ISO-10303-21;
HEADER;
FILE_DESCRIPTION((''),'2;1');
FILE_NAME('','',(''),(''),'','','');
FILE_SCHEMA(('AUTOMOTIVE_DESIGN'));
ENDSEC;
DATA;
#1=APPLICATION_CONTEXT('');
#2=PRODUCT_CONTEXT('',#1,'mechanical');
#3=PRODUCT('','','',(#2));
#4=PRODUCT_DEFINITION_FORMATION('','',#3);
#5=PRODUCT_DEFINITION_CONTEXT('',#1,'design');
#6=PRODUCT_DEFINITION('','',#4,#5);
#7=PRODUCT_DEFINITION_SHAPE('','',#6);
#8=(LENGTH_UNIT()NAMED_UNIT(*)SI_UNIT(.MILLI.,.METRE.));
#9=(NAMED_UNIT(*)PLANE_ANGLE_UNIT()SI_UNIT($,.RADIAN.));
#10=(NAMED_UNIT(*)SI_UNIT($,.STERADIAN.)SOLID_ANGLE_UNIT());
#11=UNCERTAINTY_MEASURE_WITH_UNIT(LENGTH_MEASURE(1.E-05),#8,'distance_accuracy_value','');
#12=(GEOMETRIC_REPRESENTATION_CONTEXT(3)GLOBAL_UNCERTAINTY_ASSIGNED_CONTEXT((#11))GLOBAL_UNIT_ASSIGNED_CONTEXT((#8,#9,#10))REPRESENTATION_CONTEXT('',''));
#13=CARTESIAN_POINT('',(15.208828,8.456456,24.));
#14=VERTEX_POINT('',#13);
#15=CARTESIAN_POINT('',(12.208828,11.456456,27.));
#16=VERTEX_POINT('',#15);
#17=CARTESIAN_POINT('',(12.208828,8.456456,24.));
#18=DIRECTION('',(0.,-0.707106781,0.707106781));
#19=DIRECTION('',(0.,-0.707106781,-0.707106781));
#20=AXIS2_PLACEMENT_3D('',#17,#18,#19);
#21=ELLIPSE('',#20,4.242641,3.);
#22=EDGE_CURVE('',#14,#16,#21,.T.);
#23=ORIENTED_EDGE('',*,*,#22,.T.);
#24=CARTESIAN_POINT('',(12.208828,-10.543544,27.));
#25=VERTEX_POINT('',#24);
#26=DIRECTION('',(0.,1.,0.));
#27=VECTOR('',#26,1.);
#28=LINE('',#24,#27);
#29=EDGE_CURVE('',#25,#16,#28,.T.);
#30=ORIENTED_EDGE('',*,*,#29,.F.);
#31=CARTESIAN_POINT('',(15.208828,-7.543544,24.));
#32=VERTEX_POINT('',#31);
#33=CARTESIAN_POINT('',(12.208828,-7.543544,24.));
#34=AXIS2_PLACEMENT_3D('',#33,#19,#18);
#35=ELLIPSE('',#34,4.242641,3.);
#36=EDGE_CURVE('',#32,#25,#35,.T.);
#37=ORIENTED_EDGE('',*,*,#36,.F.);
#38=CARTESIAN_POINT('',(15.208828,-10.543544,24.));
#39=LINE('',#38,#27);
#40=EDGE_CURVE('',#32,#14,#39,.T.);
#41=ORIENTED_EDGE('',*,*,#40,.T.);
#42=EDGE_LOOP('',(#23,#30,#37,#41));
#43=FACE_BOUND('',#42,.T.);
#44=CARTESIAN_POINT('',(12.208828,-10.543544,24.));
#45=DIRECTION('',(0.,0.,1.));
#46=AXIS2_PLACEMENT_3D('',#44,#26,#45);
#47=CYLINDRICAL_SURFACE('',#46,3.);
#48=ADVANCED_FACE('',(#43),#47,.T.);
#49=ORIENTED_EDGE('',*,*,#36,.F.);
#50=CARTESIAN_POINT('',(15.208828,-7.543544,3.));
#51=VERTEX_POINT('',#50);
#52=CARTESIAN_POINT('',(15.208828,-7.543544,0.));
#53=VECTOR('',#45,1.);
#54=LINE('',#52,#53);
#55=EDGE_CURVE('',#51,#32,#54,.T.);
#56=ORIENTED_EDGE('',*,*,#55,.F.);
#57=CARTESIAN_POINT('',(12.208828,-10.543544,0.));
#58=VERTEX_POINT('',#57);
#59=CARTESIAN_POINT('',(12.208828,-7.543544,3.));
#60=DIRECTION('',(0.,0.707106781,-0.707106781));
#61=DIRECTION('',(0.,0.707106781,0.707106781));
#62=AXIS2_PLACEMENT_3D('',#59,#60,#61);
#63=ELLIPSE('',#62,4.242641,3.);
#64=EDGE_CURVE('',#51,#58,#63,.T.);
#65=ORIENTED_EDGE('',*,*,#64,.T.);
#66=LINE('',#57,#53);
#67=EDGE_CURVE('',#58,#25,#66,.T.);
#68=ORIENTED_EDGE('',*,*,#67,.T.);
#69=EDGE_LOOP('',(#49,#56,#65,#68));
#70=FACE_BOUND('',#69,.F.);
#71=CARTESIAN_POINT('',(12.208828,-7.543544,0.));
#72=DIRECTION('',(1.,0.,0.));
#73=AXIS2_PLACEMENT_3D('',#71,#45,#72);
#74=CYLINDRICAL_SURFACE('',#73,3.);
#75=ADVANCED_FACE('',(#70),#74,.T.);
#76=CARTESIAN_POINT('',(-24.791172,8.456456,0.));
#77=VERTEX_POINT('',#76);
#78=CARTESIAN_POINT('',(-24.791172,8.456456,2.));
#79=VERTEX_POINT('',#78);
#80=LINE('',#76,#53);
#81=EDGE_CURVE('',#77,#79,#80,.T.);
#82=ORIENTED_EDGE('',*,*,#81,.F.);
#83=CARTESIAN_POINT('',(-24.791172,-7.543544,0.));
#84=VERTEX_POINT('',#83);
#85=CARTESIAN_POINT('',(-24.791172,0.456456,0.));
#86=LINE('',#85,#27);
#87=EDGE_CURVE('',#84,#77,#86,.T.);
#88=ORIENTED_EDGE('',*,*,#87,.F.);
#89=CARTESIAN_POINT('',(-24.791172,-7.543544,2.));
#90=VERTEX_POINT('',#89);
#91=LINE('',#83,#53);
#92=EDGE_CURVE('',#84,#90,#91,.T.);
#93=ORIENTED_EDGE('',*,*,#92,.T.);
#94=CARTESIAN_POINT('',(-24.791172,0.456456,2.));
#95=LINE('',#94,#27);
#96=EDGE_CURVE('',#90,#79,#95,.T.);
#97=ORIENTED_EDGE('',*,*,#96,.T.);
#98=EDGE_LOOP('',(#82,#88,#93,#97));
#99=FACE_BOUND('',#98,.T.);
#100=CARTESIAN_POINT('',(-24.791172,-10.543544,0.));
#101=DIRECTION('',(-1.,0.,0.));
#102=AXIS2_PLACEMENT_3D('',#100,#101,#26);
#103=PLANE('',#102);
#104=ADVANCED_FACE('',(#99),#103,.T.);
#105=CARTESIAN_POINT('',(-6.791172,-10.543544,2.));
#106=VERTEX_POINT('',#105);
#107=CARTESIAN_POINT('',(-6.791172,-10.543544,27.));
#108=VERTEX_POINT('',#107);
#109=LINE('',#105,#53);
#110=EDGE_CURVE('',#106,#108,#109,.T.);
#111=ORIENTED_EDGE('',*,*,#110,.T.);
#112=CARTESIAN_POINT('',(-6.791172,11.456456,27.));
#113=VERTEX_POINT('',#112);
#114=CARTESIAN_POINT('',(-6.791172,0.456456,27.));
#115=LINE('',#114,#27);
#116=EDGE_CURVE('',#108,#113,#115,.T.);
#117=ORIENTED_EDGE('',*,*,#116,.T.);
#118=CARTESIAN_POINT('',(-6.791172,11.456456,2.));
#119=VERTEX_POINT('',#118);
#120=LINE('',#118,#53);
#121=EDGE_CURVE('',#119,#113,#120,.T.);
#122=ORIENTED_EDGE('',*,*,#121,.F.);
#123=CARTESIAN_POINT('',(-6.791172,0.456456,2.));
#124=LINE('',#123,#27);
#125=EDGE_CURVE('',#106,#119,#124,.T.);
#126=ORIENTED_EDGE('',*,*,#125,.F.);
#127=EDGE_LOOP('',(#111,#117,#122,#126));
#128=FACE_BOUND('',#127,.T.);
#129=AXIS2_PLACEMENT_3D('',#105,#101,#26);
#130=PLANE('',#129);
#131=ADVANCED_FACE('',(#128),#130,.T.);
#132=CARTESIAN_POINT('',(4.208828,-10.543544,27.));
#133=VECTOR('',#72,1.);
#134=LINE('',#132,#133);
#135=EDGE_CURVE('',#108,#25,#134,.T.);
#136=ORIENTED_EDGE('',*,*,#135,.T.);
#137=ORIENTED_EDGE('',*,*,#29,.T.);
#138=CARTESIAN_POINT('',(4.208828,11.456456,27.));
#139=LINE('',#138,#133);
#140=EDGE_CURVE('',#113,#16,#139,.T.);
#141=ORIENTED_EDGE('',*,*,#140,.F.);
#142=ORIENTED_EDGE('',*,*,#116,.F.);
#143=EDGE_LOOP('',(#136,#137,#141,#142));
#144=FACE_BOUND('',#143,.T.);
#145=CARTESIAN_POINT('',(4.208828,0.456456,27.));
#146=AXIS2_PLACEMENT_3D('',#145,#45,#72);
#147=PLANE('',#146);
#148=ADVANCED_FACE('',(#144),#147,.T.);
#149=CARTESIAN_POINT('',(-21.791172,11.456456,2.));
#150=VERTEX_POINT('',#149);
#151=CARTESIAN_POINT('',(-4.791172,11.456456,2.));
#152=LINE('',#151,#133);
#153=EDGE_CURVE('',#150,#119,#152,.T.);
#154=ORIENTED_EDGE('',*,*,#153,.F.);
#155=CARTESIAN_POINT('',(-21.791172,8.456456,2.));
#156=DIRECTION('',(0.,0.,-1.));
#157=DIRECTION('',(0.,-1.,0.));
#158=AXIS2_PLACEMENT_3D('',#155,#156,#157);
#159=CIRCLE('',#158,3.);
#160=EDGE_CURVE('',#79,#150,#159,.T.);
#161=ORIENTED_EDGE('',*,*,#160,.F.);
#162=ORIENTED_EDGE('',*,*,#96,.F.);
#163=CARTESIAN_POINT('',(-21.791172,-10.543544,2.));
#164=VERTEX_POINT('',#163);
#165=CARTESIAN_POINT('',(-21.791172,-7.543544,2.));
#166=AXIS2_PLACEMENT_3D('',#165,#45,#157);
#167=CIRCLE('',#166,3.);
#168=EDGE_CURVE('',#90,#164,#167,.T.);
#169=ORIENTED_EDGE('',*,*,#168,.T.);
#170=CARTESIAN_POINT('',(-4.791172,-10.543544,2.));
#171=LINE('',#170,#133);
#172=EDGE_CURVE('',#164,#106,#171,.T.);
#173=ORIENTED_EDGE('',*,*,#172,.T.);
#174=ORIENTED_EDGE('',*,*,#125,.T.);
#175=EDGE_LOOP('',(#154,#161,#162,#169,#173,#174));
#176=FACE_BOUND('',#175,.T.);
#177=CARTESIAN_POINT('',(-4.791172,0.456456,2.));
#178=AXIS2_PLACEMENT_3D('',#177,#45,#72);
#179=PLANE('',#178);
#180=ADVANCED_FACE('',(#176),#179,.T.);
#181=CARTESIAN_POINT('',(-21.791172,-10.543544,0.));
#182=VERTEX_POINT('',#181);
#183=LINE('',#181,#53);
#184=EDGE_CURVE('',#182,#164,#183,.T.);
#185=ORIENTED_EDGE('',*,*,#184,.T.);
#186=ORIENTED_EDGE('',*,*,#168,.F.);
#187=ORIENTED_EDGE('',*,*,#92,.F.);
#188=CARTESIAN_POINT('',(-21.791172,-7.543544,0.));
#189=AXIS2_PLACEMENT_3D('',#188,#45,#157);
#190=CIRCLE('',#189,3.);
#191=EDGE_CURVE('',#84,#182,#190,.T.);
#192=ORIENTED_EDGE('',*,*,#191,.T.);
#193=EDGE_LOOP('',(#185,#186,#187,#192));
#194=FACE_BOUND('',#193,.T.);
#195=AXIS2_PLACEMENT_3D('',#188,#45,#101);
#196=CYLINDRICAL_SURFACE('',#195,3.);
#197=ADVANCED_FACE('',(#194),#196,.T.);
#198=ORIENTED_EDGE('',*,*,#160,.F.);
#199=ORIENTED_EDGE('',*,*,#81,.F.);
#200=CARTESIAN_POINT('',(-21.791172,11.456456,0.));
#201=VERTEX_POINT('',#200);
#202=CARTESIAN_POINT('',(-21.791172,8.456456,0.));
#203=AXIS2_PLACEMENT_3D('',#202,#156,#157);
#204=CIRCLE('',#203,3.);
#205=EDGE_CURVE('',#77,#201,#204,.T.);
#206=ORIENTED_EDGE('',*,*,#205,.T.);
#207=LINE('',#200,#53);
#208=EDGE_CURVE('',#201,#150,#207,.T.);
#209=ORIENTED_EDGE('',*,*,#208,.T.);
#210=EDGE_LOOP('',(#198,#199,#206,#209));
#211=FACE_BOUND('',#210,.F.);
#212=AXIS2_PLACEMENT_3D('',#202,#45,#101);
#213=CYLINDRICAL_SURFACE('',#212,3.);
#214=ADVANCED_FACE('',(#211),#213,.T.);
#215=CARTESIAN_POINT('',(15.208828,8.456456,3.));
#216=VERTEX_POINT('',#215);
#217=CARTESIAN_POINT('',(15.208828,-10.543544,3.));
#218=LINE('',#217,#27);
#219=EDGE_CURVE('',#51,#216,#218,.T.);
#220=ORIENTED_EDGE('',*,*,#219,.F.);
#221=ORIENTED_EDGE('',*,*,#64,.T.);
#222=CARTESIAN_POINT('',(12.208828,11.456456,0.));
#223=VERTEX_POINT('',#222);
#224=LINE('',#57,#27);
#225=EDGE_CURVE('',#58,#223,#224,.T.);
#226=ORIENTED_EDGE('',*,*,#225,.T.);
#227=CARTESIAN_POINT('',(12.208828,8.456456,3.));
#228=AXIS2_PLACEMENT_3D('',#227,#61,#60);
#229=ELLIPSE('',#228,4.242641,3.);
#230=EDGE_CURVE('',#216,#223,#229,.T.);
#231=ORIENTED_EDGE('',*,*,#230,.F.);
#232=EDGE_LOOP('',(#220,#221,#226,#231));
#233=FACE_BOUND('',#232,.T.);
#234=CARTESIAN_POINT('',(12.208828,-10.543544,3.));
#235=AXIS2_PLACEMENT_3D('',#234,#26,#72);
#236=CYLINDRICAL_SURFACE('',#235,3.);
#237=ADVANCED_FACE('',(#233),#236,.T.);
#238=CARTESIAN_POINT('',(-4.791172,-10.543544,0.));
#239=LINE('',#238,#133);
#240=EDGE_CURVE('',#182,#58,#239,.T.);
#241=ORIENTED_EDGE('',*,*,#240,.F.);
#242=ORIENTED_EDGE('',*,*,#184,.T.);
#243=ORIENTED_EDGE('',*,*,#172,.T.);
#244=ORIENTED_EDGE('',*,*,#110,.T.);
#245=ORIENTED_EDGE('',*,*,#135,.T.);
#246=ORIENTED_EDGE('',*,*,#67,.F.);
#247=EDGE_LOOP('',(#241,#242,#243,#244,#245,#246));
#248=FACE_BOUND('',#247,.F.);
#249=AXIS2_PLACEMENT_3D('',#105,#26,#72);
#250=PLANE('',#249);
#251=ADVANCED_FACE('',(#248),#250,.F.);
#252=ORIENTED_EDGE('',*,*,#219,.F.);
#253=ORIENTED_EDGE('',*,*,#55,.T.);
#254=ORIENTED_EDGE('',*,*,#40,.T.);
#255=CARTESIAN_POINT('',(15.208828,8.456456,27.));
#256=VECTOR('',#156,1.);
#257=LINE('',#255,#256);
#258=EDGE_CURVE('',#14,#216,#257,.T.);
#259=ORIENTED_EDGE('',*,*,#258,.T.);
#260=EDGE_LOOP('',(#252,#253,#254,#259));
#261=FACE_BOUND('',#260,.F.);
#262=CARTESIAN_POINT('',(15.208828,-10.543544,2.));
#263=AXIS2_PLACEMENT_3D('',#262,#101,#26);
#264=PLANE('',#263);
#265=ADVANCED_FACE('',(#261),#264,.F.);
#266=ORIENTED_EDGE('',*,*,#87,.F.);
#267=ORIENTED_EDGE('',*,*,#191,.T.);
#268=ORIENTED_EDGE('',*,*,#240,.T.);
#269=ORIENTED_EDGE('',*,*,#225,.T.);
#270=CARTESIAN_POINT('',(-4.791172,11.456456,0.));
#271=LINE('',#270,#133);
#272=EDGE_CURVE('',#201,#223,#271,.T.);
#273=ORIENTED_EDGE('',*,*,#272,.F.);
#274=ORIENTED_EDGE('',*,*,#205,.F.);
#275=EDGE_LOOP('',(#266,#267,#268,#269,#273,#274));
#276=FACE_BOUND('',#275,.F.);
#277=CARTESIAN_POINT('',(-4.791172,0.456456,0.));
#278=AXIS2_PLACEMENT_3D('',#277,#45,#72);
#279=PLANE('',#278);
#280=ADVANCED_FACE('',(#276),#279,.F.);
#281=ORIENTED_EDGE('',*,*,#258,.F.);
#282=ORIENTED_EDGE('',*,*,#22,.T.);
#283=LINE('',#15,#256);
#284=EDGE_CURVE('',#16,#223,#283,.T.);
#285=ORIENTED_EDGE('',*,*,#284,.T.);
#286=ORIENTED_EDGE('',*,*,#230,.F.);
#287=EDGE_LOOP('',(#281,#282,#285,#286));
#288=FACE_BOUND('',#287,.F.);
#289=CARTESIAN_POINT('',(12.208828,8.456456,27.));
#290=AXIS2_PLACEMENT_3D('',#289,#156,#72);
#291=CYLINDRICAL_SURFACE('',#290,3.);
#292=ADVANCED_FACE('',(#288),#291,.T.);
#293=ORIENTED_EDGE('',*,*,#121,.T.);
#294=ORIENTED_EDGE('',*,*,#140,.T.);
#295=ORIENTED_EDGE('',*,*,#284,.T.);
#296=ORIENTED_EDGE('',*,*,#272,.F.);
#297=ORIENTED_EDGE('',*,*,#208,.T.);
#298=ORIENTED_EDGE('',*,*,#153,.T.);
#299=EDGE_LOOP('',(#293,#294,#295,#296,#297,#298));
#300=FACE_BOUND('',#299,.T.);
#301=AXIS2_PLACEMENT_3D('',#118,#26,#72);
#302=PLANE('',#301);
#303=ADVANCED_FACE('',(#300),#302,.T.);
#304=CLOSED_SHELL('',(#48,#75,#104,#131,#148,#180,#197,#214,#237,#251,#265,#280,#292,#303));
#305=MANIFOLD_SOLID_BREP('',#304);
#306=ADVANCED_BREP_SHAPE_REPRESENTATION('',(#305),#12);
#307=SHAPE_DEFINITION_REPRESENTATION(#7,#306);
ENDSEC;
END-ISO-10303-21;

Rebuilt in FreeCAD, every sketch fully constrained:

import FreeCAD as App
import Part
import Sketcher

V = App.Vector
Q = App.Units.Quantity


def edges_at(feature, points):
    """Names of the edges that pass closest to the given points."""
    edges = feature.Shape.Edges
    near = lambda p: min(range(len(edges)), key=lambda i: edges[i].distToShape(Part.Vertex(*p))[0])
    return sorted({f"Edge{near(p) + 1}" for p in points})


def add_polygon(sketch, points):
    """Adds a closed chain of lines whose ends are joined by coincident constraints."""
    first, n = sketch.GeometryCount, len(points)
    for a, b in zip(points, points[1:] + points[:1]):
        sketch.addGeometry(Part.LineSegment(App.Vector(*a, 0), App.Vector(*b, 0)), False)
    for i in range(n):
        sketch.addConstraint(Sketcher.Constraint("Coincident", first + i, 2, first + (i + 1) % n, 1))

doc = App.newDocument("Part")
params = doc.addObject("Spreadsheet::Sheet", "Params")
for row, (alias, value) in enumerate([
    ("sketch1_width", "40 mm"),
    ("sketch1_height", "22 mm"),
    ("pad1_length", "2 mm"),
    ("sketch2_width", "22 mm"),
    ("pad2_length", "25 mm"),
    ("fillet_radius", "3 mm"),
], start=1):
    params.set(f"A{row}", alias)
    params.set(f"B{row}", "=" + value)
    params.setAlias(f"B{row}", alias)

body = doc.addObject("PartDesign::Body", "Body")

sketch1 = doc.addObject("Sketcher::SketchObject", "Sketch")
body.addObject(sketch1)
sketch1.AttachmentSupport = (doc.XY_Plane, [""])
sketch1.MapMode = "FlatFace"
add_polygon(sketch1, [(-25, 11), (-25, -11), (15, -11), (15, 11)])
sketch1.addConstraint([
    Sketcher.Constraint("Vertical", 0),
    Sketcher.Constraint("Horizontal", 1),
    Sketcher.Constraint("Vertical", 2),
    Sketcher.Constraint("Horizontal", 3),
    Sketcher.Constraint("DistanceX", 1, 1, 1, 2, Q("40 mm")),
    Sketcher.Constraint("DistanceY", 0, 2, 0, 1, Q("22 mm")),
    Sketcher.Constraint("DistanceX", 0, 2, -1, 1, Q("24.791172 mm")),
    Sketcher.Constraint("DistanceY", 0, 2, -1, 1, Q("10.543544 mm")),
])
sketch1.setExpression("Constraints[8]", "Params.sketch1_width")
sketch1.setExpression("Constraints[9]", "Params.sketch1_height")
pad1 = doc.addObject("PartDesign::Pad", "Pad")
body.addObject(pad1)
pad1.Profile = sketch1
pad1.setExpression("Length", "Params.pad1_length")

sketch2 = doc.addObject("Sketcher::SketchObject", "Sketch001")
body.addObject(sketch2)
sketch2.AttachmentSupport = (doc.XY_Plane, [""])
sketch2.MapMode = "FlatFace"
sketch2.AttachmentOffset = App.Placement(V(0, 0, 2), App.Rotation())
add_polygon(sketch2, [(-7, 11), (-7, -11), (15, -11), (15, 11)])
sketch2.addConstraint([
    Sketcher.Constraint("Vertical", 0),
    Sketcher.Constraint("Horizontal", 1),
    Sketcher.Constraint("Vertical", 2),
    Sketcher.Constraint("Horizontal", 3),
    Sketcher.Constraint("Equal", 3, 0),
    Sketcher.Constraint("DistanceX", 1, 1, 1, 2, Q("22 mm")),
    Sketcher.Constraint("DistanceX", 0, 2, -1, 1, Q("6.791172 mm")),
    Sketcher.Constraint("DistanceY", 0, 2, -1, 1, Q("10.543544 mm")),
])
sketch2.setExpression("Constraints[9]", "Params.sketch2_width")
pad2 = doc.addObject("PartDesign::Pad", "Pad001")
body.addObject(pad2)
pad2.Profile = sketch2
pad2.setExpression("Length", "Params.pad2_length")
doc.recompute()

fillet = doc.addObject("PartDesign::Fillet", "Fillet")
body.addObject(fillet)
fillet.Base = (pad2, edges_at(pad2, [
    (-24.791, 11.456, 1),
    (-24.791, -10.544, 1),
    (15.209, -10.544, 13.5),
    (15.209, 0.456, 0),
    (15.209, 11.456, 13.5),
    (15.209, 0.456, 27),
]))
fillet.setExpression("Radius", "Params.fillet_radius")

doc.recompute()
